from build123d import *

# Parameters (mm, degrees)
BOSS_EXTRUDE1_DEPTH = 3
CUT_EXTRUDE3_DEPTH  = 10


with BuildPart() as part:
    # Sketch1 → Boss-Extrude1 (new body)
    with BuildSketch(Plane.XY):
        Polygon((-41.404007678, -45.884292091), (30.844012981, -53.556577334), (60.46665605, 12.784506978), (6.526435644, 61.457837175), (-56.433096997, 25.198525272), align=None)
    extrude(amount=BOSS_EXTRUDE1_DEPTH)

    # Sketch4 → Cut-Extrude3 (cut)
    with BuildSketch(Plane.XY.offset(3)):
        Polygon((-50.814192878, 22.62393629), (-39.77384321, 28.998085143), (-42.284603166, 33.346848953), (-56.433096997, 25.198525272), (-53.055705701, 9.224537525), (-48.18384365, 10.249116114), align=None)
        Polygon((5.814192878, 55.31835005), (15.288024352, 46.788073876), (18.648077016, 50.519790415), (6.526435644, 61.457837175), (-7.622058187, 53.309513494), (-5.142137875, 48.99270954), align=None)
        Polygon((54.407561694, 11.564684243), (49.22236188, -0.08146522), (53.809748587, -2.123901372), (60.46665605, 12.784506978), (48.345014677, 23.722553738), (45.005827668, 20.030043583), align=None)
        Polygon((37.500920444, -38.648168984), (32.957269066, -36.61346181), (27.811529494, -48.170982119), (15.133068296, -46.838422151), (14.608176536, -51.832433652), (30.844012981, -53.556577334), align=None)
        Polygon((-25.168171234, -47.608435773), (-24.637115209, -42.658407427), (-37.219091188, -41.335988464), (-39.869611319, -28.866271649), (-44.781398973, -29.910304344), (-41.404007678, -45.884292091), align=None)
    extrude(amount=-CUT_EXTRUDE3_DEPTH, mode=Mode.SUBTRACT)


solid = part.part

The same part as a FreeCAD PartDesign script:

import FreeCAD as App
import Part
import Sketcher
from FreeCAD import Vector
Q = App.Units.Quantity


def add_polygon(sketch, points):
    """Adds a closed chain of lines whose ends are joined by coincident constraints."""
    first, n = sketch.GeometryCount, len(points)
    for a, b in zip(points, points[1:] + points[:1]):
        sketch.addGeometry(Part.LineSegment(App.Vector(*a, 0), App.Vector(*b, 0)), False)
    for i in range(n):
        sketch.addConstraint(Sketcher.Constraint("Coincident", first + i, 2, first + (i + 1) % n, 1))

doc = App.newDocument("Part")
body = doc.addObject("PartDesign::Body", "Body")

sketch1 = body.newObject("Sketcher::SketchObject", "Sketch")
sketch1.AttachmentSupport = (doc.getObject("XY_Plane"), [""])
sketch1.MapMode = "FlatFace"
add_polygon(sketch1, [(-41, -46), (31, -54), (60, 13), (7, 61), (-56, 25)])
sketch1.addConstraint([
    Sketcher.Constraint("Equal", 0, 1),
    Sketcher.Constraint("Equal", 1, 2),
    Sketcher.Constraint("Equal", 2, 3),
    Sketcher.Constraint("Equal", 3, 4),
    Sketcher.Constraint("DistanceY", 4, 2, 1, 2, Q("58.668799 mm")),
    Sketcher.Constraint("DistanceX", 2, 2, 1, 2, Q("53.94022 mm")),
    Sketcher.Constraint("DistanceY", 1, 2, 2, 2, Q("48.67333 mm")),
    Sketcher.Constraint("DistanceY", 3, 2, 2, 2, Q("36.259312 mm")),
    Sketcher.Constraint("DistanceX", -1, 1, 0, 2, Q("30.844013 mm")),
    Sketcher.Constraint("DistanceY", 0, 2, -1, 1, Q("53.556577 mm")),
])
pad1 = body.newObject("PartDesign::Pad", "Pad")
pad1.Profile = sketch1
pad1.Length = 3

sketch2 = body.newObject("Sketcher::SketchObject", "Sketch001")
sketch2.AttachmentSupport = (doc.getObject("XY_Plane"), [""])
sketch2.MapMode = "FlatFace"
sketch2.AttachmentOffset = App.Placement(Vector(0, 0, 3), App.Rotation())
add_polygon(sketch2, [(-50.8, 22.6), (-39.8, 29), (-42.3, 33.3), (-56.4, 25.2), (-53.1, 9.2), (-48.2, 10.2)])
add_polygon(sketch2, [(5.8, 55.3), (15.3, 46.8), (18.6, 50.5), (6.5, 61.5), (-7.6, 53.3), (-5.1, 49)])
add_polygon(sketch2, [(54.4, 11.6), (49.2, -0.1), (53.8, -2.1), (60.5, 12.8), (48.3, 23.7), (45, 20)])
add_polygon(sketch2, [(37.5, -38.6), (33, -36.6), (27.8, -48.2), (15.1, -46.8), (14.6, -51.8), (30.8, -53.6)])
add_polygon(sketch2, [(-25.2, -47.6), (-24.6, -42.7), (-37.2, -41.3), (-39.9, -28.9), (-44.8, -29.9), (-41.4, -45.9)])
sketch2.addConstraint([
    Sketcher.Constraint("Perpendicular", 0, 1),
    Sketcher.Constraint("Perpendicular", 6, 7),
    Sketcher.Constraint("Parallel", 2, 9),
    Sketcher.Constraint("Perpendicular", 1, 11),
    Sketcher.Constraint("Perpendicular", 12, 13),
    Sketcher.Constraint("Parallel", 8, 15),
    Sketcher.Constraint("Perpendicular", 7, 17),
    Sketcher.Constraint("Perpendicular", 13, 19),
    Sketcher.Constraint("Perpendicular", 20, 21),
    Sketcher.Constraint("Parallel", 14, 23),
    Sketcher.Constraint("Perpendicular", 21, 25),
    Sketcher.Constraint("Parallel", 5, 26),
    Sketcher.Constraint("Perpendicular", 26, 27),
    Sketcher.Constraint("Parallel", 3, 28),
    Sketcher.Constraint("Parallel", 22, 29),
    Sketcher.Constraint("Equal", 2, 3),
    Sketcher.Constraint("Equal", 0, 6),
    Sketcher.Constraint("Equal", 1, 7),
    Sketcher.Constraint("Equal", 3, 8),
    Sketcher.Constraint("Equal", 8, 9),
    Sketcher.Constraint("Equal", 4, 10),
    Sketcher.Constraint("Equal", 5, 11),
    Sketcher.Constraint("Equal", 6, 12),
    Sketcher.Constraint("Equal", 7, 13),
    Sketcher.Constraint("Equal", 9, 14),
    Sketcher.Constraint("Equal", 14, 15),
    Sketcher.Constraint("Equal", 10, 16),
    Sketcher.Constraint("Equal", 11, 17),
    Sketcher.Constraint("Equal", 16, 18),
    Sketcher.Constraint("Equal", 17, 19),
    Sketcher.Constraint("Equal", 12, 20),
    Sketcher.Constraint("Equal", 13, 21),
    Sketcher.Constraint("Equal", 15, 22),
    Sketcher.Constraint("Equal", 22, 23),
    Sketcher.Constraint("Equal", 18, 24),
    Sketcher.Constraint("Equal", 19, 25),
    Sketcher.Constraint("Equal", 20, 26),
    Sketcher.Constraint("Equal", 21, 27),
    Sketcher.Constraint("Equal", 23, 28),
    Sketcher.Constraint("Equal", 28, 29),
    Sketcher.Constraint("Angle", 0, Q("30 deg")),
    Sketcher.Constraint("Angle", 5, Q("102 deg")),
    Sketcher.Constraint("Angle", 6, Q("-42 deg")),
    Sketcher.Constraint("Angle", 12, Q("-114 deg")),
    Sketcher.Constraint("Angle", 20, Q("174 deg")),
    Sketcher.Constraint("DistanceX", 4, 2, 0, 2, Q("8.41 mm")),
    Sketcher.Constraint("DistanceY", 13, 2, -1, 1, Q("2.123901 mm")),
    Sketcher.Constraint("DistanceX", 27, 2, -1, 1, Q("44.781399 mm")),
    Sketcher.Constraint("DistanceY", 3, 2, 5, 2, Q("13.399399 mm")),
    Sketcher.Constraint("DistanceY", 5, 2, 8, 2, Q("38.833901 mm")),
    Sketcher.Constraint("DistanceX", 10, 2, 12, 2, Q("54.3645 mm")),
    Sketcher.Constraint("DistanceX", 12, 2, 17, 2, Q("5.1852 mm")),
    Sketcher.Constraint("Distance", 1, Q("5.02152 mm")),
    Sketcher.Constraint("DistanceY", -1, 1, 1, 2, Q("33.346849 mm")),
    Sketcher.Constraint("DistanceY", -1, 1, 7, 2, Q("50.51979 mm")),
    Sketcher.Constraint("DistanceX", 9, 2, -1, 1, Q("7.622058 mm")),
    Sketcher.Constraint("DistanceX", -1, 1, 18, 2, Q("32.957269 mm")),
    Sketcher.Constraint("DistanceY", 18, 2, -1, 1, Q("36.613462 mm")),
    Sketcher.Constraint("DistanceY", 25, 2, -1, 1, Q("41.335988 mm")),
    Sketcher.Constraint("DistanceX", 4, 2, 6, 2, Q("63.471868 mm")),
])
pocket1 = body.newObject("PartDesign::Pocket", "Pocket")
pocket1.Profile = sketch2
pocket1.Length = 10

doc.recompute()
